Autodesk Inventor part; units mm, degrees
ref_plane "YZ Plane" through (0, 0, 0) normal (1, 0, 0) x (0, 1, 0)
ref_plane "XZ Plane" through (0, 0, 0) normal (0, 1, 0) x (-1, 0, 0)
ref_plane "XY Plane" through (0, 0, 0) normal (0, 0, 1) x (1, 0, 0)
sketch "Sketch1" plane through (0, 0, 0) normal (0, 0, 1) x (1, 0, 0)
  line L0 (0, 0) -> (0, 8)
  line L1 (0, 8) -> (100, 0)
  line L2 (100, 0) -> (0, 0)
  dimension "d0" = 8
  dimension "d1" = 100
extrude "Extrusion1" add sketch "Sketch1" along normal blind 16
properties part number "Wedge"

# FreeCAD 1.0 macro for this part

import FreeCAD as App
import Part
import Sketcher
Q = App.Units.Quantity


def add_polygon(sketch, points):
    """Adds a closed chain of lines whose ends are joined by coincident constraints."""
    first, n = sketch.GeometryCount, len(points)
    for a, b in zip(points, points[1:] + points[:1]):
        sketch.addGeometry(Part.LineSegment(App.Vector(*a, 0), App.Vector(*b, 0)), False)
    for i in range(n):
        sketch.addConstraint(Sketcher.Constraint("Coincident", first + i, 2, first + (i + 1) % n, 1))

doc = App.newDocument("Part")
params = doc.addObject("Spreadsheet::Sheet", "Params")
for row, (alias, value) in enumerate([
    ("sketch1_width", "100 mm"),
    ("sketch1_height", "8 mm"),
    ("pad1_length", "16 mm"),
], start=1):
    params.set(f"A{row}", alias)
    params.set(f"B{row}", "=" + value)
    params.setAlias(f"B{row}", alias)

body = doc.addObject("PartDesign::Body", "Body")

# Sketch on XY plane
sketch1 = body.newObject("Sketcher::SketchObject", "Sketch")
sketch1.AttachmentSupport = (doc.getObject("XY_Plane"), [""])
sketch1.MapMode = "FlatFace"
add_polygon(sketch1, [(0, 8), (0, 0), (100, 0)])  # lines 0-2
sketch1.addConstraint([
    Sketcher.Constraint("Vertical", 0),
    Sketcher.Constraint("Horizontal", 1),
    Sketcher.Constraint("Coincident", 0, 2, -1, 1),
    Sketcher.Constraint("DistanceX", 1, 1, 1, 2, Q("100 mm")),
    Sketcher.Constraint("DistanceY", 0, 2, 0, 1, Q("8 mm")),
])
sketch1.setExpression("Constraints[6]", "Params.sketch1_width")
sketch1.setExpression("Constraints[7]", "Params.sketch1_height")
pad1 = body.newObject("PartDesign::Pad", "Pad")
pad1.Profile = sketch1
pad1.setExpression("Length", "Params.pad1_length")

doc.recompute()
